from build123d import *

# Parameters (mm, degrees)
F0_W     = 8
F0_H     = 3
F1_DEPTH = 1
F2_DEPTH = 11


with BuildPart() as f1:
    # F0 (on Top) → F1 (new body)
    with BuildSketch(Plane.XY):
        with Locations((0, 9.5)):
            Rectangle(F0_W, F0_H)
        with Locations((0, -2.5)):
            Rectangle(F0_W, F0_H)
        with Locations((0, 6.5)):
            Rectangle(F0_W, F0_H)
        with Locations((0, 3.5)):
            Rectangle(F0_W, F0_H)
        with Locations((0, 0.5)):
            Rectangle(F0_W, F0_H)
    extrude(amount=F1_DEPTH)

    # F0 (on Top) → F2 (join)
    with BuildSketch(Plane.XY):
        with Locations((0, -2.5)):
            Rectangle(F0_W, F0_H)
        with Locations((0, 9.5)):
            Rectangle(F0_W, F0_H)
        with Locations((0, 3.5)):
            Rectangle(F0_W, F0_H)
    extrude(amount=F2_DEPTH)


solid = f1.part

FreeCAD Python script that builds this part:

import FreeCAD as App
import Part
import Sketcher
Q = App.Units.Quantity


def add_polygon(sketch, points):
    """Adds a closed chain of lines whose ends are joined by coincident constraints."""
    first, n = sketch.GeometryCount, len(points)
    for a, b in zip(points, points[1:] + points[:1]):
        sketch.addGeometry(Part.LineSegment(App.Vector(*a, 0), App.Vector(*b, 0)), False)
    for i in range(n):
        sketch.addConstraint(Sketcher.Constraint("Coincident", first + i, 2, first + (i + 1) % n, 1))

doc = App.newDocument("Part")
body = doc.addObject("PartDesign::Body", "Body")

sketch1 = body.newObject("Sketcher::SketchObject", "Sketch")
sketch1.AttachmentSupport = (doc.getObject("XY_Plane"), [""])
sketch1.MapMode = "FlatFace"
add_polygon(sketch1, [(-4, 11), (-4, -4), (4, -4), (4, 11)])
sketch1.addConstraint(Sketcher.Constraint("Vertical", 0))
sketch1.addConstraint(Sketcher.Constraint("Horizontal", 1))
sketch1.addConstraint(Sketcher.Constraint("Vertical", 2))
sketch1.addConstraint(Sketcher.Constraint("Horizontal", 3))
sketch1.addConstraint(Sketcher.Constraint("DistanceX", 1, 1, 1, 2, Q("8 mm")))
sketch1.addConstraint(Sketcher.Constraint("DistanceY", 0, 2, 0, 1, Q("15 mm")))
sketch1.addConstraint(Sketcher.Constraint("DistanceX", 0, 2, -1, 1, Q("4 mm")))
sketch1.addConstraint(Sketcher.Constraint("DistanceY", 0, 2, -1, 1, Q("4 mm")))
pad1 = body.newObject("PartDesign::Pad", "Pad")
pad1.Profile = sketch1
pad1.Length = 1

sketch2 = body.newObject("Sketcher::SketchObject", "Sketch001")
sketch2.AttachmentSupport = (doc.getObject("XY_Plane"), [""])
sketch2.MapMode = "FlatFace"
add_polygon(sketch2, [(-4, -1), (-4, -4), (4, -4), (4, -1)])
add_polygon(sketch2, [(-4, 11), (-4, 8), (4, 8), (4, 11)])
add_polygon(sketch2, [(-4, 5), (-4, 2), (4, 2), (4, 5)])
sketch2.addConstraint(Sketcher.Constraint("Vertical", 0))
sketch2.addConstraint(Sketcher.Constraint("Horizontal", 1))
sketch2.addConstraint(Sketcher.Constraint("Vertical", 2))
sketch2.addConstraint(Sketcher.Constraint("Horizontal", 3))
sketch2.addConstraint(Sketcher.Constraint("Vertical", 4))
sketch2.addConstraint(Sketcher.Constraint("Horizontal", 5))
sketch2.addConstraint(Sketcher.Constraint("Vertical", 6))
sketch2.addConstraint(Sketcher.Constraint("Horizontal", 7))
sketch2.addConstraint(Sketcher.Constraint("Vertical", 8))
sketch2.addConstraint(Sketcher.Constraint("Horizontal", 9))
sketch2.addConstraint(Sketcher.Constraint("Vertical", 10))
sketch2.addConstraint(Sketcher.Constraint("Horizontal", 11))
sketch2.addConstraint(Sketcher.Constraint("Vertical", 3, 2, 4, 2))
sketch2.addConstraint(Sketcher.Constraint("Vertical", 2, 2, 5, 2))
sketch2.addConstraint(Sketcher.Constraint("Vertical", 7, 2, 8, 2))
sketch2.addConstraint(Sketcher.Constraint("Vertical", 6, 2, 9, 2))
sketch2.addConstraint(Sketcher.Constraint("Equal", 2, 4))
sketch2.addConstraint(Sketcher.Constraint("Equal", 6, 8))
sketch2.addConstraint(Sketcher.Constraint("DistanceX", 1, 1, 1, 2, Q("8 mm")))
sketch2.addConstraint(Sketcher.Constraint("DistanceY", 0, 2, 0, 1, Q("3 mm")))
sketch2.addConstraint(Sketcher.Constraint("DistanceX", 0, 2, -1, 1, Q("4 mm")))
sketch2.addConstraint(Sketcher.Constraint("DistanceY", 0, 2, -1, 1, Q("4 mm")))
sketch2.addConstraint(Sketcher.Constraint("DistanceY", -1, 1, 4, 2, Q("8 mm")))
sketch2.addConstraint(Sketcher.Constraint("DistanceY", -1, 1, 8, 2, Q("2 mm")))
pad2 = body.newObject("PartDesign::Pad", "Pad001")
pad2.Profile = sketch2
pad2.Length = 11

doc.recompute()
